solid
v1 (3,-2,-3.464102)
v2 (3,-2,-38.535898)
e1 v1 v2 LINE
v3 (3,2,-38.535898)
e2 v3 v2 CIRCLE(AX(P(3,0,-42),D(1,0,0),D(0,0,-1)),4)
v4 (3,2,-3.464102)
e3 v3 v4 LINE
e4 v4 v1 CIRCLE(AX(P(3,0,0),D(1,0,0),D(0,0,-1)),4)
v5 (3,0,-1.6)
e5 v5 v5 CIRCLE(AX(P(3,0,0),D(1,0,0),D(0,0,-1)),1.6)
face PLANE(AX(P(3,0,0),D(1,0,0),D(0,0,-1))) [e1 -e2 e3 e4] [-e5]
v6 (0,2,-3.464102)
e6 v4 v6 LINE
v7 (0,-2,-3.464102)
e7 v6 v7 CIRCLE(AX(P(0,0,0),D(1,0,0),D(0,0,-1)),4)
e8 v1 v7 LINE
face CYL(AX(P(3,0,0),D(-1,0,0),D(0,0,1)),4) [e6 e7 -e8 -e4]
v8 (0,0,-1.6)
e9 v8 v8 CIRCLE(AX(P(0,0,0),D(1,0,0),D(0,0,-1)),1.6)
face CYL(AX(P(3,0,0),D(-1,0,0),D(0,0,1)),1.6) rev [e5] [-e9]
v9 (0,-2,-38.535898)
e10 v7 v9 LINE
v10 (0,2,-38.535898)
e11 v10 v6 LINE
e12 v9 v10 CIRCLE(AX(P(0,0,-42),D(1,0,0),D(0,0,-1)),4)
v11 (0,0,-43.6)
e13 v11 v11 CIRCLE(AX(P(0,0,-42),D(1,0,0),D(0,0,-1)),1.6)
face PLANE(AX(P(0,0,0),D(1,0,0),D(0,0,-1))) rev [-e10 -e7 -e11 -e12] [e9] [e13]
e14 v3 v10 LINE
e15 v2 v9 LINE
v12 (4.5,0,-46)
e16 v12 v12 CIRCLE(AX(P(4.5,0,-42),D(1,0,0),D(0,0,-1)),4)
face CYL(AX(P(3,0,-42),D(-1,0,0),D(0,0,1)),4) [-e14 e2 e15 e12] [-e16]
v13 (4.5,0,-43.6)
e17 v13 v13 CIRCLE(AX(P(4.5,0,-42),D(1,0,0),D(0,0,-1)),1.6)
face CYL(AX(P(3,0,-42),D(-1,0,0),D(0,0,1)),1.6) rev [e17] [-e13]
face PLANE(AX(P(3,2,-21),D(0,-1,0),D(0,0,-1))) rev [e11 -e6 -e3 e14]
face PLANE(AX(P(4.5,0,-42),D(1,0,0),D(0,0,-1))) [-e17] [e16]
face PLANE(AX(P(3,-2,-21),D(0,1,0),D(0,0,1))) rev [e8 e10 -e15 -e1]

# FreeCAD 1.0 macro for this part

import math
import FreeCAD as App
import Part
import Sketcher
from FreeCAD import Vector

doc = App.newDocument("Part")
body = doc.addObject("PartDesign::Body", "Body")

# Sketch on YZ plane
sketch1 = doc.addObject("Sketcher::SketchObject", "Sketch")
body.addObject(sketch1)
sketch1.AttachmentSupport = (doc.YZ_Plane, [""])
sketch1.MapMode = "FlatFace"
sketch1.addGeometry([
    Part.ArcOfCircle(Part.Circle(Vector(0, -42, 0), Vector(0, 0, 1), 4), math.radians(120), math.radians(420)),  # 0
    Part.LineSegment(Vector(2, -38.535898, 0), Vector(2, -3.464102, 0)),  # 1
    Part.ArcOfCircle(Part.Circle(Vector(0, 0, 0), Vector(0, 0, 1), 4), math.radians(-60), math.radians(240)),  # 2
    Part.LineSegment(Vector(-2, -3.464102, 0), Vector(-2, -38.535898, 0)),  # 3
    Part.Circle(Vector(0, -42, 0), Vector(0, 0, 1), 1.6),  # 4
    Part.Circle(Vector(0, 0, 0), Vector(0, 0, 1), 1.6),  # 5
], False)
sketch1.addConstraint([
    Sketcher.Constraint("Coincident", 0, 2, 1, 1),
    Sketcher.Constraint("Coincident", 1, 2, 2, 1),
    Sketcher.Constraint("Coincident", 2, 2, 3, 1),
    Sketcher.Constraint("Coincident", 3, 2, 0, 1),
    Sketcher.Constraint("Vertical", 1),
    Sketcher.Constraint("Vertical", 3),
    Sketcher.Constraint("Coincident", 2, 3, -1, 1),
    Sketcher.Constraint("Coincident", 5, 3, -1, 1),
    Sketcher.Constraint("Coincident", 4, 3, 0, 3),
    Sketcher.Constraint("Equal", 0, 2),
    Sketcher.Constraint("Equal", 4, 5),
    Sketcher.Constraint("Symmetric", 0, 2, 3, 2, -2),
    Sketcher.Constraint("Radius", 0, 4.0),
    Sketcher.Constraint("Diameter", 4, 3.2),
    Sketcher.Constraint("DistanceY", 0, 3, -1, 1, 42.0),
    Sketcher.Constraint("DistanceX", -1, 1, 0, 2, 2.0),
])
pad1 = doc.addObject("PartDesign::Pad", "Pad")
body.addObject(pad1)
pad1.Profile = sketch1
pad1.Length = 3

# Sketch on YZ plane
sketch2 = doc.addObject("Sketcher::SketchObject", "Sketch001")
body.addObject(sketch2)
sketch2.AttachmentSupport = (doc.YZ_Plane, [""])
sketch2.MapMode = "FlatFace"
sketch2.AttachmentOffset = App.Placement(Vector(0, 0, 3), App.Rotation())
sketch2.addGeometry([
    Part.Circle(Vector(0, -42, 0), Vector(0, 0, 1), 4),
    Part.Circle(Vector(0, -42, 0), Vector(0, 0, 1), 1.6),
], False)
sketch2.addConstraint([
    Sketcher.Constraint("Coincident", 1, 3, 0, 3),
    Sketcher.Constraint("PointOnObject", 0, 3, -2),
    Sketcher.Constraint("Diameter", 0, 8.0),
    Sketcher.Constraint("Diameter", 1, 3.2),
    Sketcher.Constraint("DistanceY", 0, 3, -1, 1, 42.0),
])
pad2 = doc.addObject("PartDesign::Pad", "Pad001")
body.addObject(pad2)
pad2.Profile = sketch2
pad2.Length = 1.5

doc.recompute()
